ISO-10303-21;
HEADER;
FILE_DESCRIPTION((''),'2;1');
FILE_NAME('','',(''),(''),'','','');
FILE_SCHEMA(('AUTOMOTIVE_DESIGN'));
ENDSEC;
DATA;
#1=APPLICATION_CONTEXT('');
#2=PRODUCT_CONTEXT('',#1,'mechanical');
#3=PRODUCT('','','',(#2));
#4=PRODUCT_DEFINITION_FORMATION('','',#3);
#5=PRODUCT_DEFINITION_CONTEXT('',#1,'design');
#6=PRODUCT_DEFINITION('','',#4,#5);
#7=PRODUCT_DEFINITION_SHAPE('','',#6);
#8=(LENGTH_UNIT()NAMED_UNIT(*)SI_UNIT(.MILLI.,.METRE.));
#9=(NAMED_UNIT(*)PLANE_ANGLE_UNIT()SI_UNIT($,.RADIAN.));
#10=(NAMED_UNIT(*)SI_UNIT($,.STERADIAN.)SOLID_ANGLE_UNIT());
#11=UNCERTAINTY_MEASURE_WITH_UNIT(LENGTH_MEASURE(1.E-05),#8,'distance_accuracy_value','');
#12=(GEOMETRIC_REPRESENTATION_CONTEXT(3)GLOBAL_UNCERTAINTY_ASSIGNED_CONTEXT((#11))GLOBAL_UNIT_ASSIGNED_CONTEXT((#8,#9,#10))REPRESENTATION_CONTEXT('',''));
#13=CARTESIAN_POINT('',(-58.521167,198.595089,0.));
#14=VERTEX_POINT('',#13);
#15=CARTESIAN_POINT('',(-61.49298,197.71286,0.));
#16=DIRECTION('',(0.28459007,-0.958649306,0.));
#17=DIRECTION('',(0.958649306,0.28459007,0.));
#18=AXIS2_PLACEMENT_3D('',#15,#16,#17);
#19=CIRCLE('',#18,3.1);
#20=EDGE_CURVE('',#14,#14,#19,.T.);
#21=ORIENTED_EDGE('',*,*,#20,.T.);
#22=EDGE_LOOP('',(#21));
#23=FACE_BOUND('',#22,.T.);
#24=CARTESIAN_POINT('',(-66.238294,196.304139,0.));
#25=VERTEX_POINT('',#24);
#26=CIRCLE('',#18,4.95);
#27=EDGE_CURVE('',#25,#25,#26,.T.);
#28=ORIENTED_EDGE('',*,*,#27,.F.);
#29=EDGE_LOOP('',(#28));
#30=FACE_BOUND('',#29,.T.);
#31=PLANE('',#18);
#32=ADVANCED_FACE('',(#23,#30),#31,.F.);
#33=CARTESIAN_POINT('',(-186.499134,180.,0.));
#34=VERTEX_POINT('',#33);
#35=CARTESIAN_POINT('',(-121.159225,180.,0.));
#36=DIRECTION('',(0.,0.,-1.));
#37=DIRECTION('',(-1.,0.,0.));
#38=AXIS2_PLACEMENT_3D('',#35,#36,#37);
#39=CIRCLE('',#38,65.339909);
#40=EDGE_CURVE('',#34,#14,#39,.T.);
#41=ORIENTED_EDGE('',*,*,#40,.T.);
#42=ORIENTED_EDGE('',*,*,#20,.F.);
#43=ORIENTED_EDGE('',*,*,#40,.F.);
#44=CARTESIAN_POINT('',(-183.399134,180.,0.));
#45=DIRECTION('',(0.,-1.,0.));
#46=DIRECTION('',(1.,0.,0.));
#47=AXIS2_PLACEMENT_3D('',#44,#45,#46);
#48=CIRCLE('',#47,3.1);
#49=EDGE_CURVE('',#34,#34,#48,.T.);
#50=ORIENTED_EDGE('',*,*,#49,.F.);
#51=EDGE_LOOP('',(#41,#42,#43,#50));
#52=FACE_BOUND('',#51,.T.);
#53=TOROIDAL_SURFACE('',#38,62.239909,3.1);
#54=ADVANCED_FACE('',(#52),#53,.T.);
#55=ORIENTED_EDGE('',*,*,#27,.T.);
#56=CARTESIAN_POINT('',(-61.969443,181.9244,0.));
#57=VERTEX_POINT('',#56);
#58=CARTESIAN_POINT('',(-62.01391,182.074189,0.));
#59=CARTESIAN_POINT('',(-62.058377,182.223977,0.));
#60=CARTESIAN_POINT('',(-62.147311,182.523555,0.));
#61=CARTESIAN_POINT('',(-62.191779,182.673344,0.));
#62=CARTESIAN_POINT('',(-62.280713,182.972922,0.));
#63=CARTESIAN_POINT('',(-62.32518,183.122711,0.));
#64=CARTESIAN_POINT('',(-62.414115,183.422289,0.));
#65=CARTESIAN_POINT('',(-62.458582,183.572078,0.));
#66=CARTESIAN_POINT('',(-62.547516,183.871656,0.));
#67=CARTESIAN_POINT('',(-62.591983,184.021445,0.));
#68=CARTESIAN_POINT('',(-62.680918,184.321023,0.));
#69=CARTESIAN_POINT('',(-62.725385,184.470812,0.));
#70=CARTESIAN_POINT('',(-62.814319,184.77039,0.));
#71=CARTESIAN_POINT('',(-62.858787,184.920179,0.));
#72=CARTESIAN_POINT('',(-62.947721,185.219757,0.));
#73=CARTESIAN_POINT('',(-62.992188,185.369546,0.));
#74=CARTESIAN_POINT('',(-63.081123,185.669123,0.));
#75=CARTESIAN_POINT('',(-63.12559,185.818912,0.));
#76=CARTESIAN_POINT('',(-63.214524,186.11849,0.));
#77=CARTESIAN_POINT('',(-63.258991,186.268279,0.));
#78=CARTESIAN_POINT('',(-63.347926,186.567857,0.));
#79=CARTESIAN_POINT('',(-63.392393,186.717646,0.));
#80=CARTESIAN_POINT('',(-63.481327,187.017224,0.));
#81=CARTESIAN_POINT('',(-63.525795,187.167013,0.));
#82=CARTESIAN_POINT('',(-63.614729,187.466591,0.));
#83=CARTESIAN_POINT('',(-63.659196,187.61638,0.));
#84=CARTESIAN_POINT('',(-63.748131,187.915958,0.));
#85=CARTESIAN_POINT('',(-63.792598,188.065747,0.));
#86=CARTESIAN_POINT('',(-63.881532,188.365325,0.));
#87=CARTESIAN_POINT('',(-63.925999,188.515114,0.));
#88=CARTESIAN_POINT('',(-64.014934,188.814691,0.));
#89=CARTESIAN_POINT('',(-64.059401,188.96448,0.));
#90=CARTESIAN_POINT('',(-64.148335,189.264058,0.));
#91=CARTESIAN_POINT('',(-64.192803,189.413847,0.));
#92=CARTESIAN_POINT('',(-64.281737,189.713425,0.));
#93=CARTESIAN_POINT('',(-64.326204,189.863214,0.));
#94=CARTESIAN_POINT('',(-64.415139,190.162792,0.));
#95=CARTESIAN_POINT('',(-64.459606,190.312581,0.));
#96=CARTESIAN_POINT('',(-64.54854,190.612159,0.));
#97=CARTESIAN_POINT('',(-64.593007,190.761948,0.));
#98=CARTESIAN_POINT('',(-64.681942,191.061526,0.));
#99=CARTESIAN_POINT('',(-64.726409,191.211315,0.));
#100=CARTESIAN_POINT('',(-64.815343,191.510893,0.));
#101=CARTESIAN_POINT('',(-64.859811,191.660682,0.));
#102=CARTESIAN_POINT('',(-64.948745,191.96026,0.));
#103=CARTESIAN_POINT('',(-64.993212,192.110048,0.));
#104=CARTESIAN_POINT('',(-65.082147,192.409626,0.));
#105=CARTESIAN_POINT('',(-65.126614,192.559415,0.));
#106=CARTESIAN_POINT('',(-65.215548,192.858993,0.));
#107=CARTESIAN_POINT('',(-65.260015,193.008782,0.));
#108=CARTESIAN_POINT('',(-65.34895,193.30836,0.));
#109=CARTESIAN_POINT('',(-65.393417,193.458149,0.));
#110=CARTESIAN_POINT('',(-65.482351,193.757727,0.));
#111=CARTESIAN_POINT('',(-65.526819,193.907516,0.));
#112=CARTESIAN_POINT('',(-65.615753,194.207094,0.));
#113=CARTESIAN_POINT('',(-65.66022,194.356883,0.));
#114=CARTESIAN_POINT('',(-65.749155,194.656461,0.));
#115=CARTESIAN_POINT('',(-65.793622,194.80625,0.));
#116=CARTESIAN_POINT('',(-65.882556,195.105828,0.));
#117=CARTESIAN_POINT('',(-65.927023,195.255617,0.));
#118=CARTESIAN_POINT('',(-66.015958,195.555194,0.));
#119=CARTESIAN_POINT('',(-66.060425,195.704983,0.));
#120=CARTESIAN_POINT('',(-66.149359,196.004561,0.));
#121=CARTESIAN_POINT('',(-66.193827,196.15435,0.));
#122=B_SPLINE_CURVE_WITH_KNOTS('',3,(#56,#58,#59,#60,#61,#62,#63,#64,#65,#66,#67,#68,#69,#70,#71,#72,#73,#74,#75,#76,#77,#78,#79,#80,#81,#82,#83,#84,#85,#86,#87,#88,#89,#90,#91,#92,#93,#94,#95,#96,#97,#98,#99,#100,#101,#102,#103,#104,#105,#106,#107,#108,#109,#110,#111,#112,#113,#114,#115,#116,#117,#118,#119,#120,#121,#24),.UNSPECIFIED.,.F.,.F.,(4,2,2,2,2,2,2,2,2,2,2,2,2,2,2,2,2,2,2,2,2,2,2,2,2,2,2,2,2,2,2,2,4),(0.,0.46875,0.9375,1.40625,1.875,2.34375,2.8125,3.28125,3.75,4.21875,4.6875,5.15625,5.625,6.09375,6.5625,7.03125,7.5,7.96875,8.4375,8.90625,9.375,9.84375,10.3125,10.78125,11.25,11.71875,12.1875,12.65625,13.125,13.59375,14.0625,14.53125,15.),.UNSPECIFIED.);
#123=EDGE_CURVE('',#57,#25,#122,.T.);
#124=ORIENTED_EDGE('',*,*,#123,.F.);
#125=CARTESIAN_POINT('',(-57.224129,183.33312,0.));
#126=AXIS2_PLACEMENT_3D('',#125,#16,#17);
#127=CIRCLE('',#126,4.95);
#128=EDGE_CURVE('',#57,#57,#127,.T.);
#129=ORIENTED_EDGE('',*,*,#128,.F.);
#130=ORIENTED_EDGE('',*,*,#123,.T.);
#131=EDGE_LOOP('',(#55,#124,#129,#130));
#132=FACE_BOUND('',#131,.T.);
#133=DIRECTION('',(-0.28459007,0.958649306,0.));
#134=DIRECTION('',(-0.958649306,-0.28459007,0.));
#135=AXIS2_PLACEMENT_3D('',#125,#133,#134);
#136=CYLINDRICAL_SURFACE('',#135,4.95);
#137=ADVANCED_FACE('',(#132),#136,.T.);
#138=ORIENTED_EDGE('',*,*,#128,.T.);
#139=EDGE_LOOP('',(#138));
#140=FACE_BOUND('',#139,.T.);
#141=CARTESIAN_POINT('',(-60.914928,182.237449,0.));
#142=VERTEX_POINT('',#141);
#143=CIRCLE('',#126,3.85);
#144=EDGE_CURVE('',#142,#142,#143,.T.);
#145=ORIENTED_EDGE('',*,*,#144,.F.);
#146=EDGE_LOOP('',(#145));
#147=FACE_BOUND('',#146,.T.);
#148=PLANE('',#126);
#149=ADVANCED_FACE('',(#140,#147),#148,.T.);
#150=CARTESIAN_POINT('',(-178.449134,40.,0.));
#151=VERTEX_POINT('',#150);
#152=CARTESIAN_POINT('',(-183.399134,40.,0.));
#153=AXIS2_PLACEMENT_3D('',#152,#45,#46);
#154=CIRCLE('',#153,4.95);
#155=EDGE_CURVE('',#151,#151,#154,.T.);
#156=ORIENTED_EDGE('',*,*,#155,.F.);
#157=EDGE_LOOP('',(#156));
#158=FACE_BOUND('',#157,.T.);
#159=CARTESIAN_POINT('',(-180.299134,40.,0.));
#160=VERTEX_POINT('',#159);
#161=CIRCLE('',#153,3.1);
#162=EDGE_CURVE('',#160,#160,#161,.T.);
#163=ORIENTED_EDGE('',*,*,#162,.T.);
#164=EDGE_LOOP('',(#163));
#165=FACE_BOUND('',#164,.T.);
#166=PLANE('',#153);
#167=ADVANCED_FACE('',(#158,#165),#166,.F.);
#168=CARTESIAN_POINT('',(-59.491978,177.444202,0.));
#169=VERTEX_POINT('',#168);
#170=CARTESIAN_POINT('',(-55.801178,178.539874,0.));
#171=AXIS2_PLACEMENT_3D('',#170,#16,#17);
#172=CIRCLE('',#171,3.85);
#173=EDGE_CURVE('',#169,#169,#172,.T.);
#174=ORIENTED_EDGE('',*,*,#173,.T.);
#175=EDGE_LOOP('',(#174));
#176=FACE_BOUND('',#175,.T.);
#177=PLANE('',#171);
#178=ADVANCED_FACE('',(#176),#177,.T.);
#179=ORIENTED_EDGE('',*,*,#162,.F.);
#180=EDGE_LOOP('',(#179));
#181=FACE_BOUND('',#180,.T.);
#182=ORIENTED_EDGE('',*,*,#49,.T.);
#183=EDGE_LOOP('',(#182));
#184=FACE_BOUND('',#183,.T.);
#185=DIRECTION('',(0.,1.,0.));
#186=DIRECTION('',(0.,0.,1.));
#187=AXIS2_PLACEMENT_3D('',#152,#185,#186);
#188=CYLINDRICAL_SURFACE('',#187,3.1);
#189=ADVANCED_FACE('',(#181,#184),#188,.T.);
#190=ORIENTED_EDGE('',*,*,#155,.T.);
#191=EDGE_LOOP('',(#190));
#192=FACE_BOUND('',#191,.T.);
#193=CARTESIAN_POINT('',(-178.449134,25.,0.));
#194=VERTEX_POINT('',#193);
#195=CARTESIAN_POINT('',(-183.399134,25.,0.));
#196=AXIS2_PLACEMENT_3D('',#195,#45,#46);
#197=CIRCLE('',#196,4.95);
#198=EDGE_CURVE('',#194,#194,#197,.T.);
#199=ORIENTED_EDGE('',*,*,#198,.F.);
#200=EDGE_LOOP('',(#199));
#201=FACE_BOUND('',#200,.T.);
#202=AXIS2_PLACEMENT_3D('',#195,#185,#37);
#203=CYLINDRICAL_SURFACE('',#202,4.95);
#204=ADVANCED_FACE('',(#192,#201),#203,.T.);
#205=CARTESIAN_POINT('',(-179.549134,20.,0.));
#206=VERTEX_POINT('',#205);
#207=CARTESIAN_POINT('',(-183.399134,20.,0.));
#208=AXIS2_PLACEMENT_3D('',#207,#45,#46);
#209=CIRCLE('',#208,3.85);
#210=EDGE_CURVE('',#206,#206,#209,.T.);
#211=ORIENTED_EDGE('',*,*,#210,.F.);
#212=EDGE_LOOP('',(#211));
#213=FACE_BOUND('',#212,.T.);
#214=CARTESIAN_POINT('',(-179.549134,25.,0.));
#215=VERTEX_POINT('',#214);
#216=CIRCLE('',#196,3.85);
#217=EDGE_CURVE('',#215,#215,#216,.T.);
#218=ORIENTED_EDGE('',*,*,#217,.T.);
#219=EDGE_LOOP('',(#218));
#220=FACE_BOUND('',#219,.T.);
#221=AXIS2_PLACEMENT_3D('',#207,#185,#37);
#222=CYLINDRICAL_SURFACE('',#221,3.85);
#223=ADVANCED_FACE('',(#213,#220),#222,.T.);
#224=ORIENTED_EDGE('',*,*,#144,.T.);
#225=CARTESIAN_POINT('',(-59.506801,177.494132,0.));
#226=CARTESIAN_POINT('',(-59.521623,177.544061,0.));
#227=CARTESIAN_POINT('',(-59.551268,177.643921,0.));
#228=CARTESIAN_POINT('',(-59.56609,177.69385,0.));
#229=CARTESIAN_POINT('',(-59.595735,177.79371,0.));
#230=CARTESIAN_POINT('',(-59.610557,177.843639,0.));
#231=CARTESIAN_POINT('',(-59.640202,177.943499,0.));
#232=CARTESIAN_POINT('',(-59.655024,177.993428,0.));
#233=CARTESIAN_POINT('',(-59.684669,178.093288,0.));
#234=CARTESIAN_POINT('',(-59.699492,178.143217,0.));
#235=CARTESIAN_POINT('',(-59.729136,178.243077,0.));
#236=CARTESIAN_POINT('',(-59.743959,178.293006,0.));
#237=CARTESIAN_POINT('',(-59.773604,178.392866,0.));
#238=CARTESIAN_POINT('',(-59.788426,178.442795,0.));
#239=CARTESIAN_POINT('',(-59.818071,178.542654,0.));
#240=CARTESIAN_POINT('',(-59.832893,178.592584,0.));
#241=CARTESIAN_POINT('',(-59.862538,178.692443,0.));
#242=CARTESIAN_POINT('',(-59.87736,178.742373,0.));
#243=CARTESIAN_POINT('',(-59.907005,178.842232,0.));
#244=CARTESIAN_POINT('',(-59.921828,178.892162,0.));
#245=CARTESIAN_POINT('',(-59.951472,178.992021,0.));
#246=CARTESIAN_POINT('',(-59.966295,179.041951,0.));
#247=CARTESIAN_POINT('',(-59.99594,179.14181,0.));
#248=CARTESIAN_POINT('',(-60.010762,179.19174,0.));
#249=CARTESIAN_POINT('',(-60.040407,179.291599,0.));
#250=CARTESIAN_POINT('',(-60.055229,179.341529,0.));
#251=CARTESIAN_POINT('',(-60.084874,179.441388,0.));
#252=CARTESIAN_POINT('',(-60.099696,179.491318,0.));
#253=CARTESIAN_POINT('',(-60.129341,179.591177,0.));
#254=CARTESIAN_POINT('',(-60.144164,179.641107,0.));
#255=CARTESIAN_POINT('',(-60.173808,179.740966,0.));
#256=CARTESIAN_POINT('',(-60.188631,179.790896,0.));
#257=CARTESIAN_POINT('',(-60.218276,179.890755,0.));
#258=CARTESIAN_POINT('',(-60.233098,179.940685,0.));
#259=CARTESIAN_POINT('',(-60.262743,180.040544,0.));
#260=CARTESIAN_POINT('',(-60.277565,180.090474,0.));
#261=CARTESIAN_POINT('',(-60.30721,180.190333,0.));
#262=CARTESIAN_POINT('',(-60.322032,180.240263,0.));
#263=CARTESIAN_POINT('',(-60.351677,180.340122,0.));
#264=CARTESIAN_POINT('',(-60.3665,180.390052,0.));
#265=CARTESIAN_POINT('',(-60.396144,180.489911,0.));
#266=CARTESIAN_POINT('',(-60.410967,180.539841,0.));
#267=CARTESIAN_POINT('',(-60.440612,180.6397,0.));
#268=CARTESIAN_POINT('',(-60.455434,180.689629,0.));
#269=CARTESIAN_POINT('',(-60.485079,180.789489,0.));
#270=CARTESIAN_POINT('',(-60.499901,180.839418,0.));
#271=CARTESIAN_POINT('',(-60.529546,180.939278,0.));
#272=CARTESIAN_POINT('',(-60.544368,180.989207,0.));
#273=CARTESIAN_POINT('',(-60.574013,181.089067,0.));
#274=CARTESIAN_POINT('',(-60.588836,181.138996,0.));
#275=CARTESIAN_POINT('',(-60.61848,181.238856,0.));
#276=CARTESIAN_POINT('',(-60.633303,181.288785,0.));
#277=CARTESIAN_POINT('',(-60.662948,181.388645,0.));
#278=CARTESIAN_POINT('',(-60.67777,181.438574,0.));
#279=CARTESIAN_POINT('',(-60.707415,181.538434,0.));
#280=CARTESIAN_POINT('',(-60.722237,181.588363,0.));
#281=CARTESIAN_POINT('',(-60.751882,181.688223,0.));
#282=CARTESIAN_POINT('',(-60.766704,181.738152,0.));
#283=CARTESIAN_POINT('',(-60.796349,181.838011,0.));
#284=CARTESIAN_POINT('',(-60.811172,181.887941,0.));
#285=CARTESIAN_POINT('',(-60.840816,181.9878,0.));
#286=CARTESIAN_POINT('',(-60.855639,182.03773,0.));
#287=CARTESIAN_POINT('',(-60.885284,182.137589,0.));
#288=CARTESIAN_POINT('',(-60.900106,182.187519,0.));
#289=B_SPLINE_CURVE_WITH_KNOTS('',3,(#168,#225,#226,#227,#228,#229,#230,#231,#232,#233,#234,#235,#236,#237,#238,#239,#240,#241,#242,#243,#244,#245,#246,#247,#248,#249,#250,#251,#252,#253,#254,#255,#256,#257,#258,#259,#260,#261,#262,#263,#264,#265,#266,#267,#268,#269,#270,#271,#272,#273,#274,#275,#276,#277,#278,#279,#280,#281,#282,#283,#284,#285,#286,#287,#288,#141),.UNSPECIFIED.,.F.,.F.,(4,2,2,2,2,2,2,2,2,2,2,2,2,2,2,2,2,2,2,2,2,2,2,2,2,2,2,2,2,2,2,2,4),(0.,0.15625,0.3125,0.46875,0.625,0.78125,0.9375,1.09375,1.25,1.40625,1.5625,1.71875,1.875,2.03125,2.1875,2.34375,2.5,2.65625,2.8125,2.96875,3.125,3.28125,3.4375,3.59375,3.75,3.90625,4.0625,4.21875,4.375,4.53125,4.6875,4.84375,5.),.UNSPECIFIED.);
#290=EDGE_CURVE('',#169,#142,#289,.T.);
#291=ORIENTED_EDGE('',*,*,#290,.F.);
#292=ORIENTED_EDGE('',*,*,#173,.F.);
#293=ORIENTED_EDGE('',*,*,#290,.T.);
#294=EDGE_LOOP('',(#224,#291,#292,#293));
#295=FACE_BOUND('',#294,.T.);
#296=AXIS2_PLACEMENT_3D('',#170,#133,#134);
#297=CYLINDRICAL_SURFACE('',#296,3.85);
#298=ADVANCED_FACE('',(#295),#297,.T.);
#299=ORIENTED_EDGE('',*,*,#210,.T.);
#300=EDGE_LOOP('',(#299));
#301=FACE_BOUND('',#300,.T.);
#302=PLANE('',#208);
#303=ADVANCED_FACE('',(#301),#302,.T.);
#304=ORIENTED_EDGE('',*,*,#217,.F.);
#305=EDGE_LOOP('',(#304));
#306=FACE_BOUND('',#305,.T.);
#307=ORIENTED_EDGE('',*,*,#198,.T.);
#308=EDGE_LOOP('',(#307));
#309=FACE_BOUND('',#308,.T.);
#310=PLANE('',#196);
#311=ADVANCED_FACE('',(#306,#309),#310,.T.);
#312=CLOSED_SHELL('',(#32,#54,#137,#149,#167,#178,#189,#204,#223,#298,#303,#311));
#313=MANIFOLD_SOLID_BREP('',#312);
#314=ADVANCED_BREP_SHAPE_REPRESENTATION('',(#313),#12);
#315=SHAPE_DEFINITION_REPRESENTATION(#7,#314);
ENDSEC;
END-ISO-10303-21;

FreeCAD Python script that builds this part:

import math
import FreeCAD as App
import Part
import Sketcher

doc = App.newDocument("Part")
body = doc.addObject("PartDesign::Body", "Body")

# Sketch on XZ plane
sketch1 = doc.addObject("Sketcher::SketchObject", "Sketch")
body.addObject(sketch1)
sketch1.AttachmentSupport = (doc.XZ_Plane, [""])
sketch1.MapMode = "FlatFace"
sketch1.AttachmentOffset = App.Placement(App.Vector(0, 0, -40), App.Rotation())
sketch1.addGeometry(Part.Circle(App.Vector(-183.4, 0, 0), App.Vector(0, 0, 1), 3.1), False)
sketch1.addConstraint([
    Sketcher.Constraint("PointOnObject", 0, 3, -1),
    Sketcher.Constraint("Diameter", 0, 6.2),
    Sketcher.Constraint("DistanceX", 0, 3, -1, 1, 183.399134),
])

# Sketch on XY plane
sketch2 = doc.addObject("Sketcher::SketchObject", "Sketch001")
body.addObject(sketch2)
sketch2.AttachmentSupport = (doc.XY_Plane, [""])
sketch2.MapMode = "FlatFace"
sketch2.addGeometry([
    Part.LineSegment(App.Vector(-183, 40, 0), App.Vector(-183, 180, 0)),
    Part.ArcOfCircle(Part.Circle(App.Vector(-121, 180, 0), App.Vector(0, 0, 1), 62), math.radians(17), math.radians(180)),
], False)
sketch2.addConstraint([
    Sketcher.Constraint("Tangent", 0, 2, 1, 2),
    Sketcher.Constraint("Vertical", 0),
    Sketcher.Constraint("DistanceY", 0, 1, 0, 2, 140.0),
    Sketcher.Constraint("DistanceY", -1, 1, 1, 3, 180.0),
    Sketcher.Constraint("Radius", 1, 62.239909),
    Sketcher.Constraint("DistanceX", 1, 1, -1, 1, 61.49298),
    Sketcher.Constraint("DistanceY", -1, 1, 1, 1, 197.71286),
])
doc.recompute()

additivepipe = doc.addObject("PartDesign::AdditivePipe", "AdditivePipe")
body.addObject(additivepipe)
additivepipe.Profile = sketch1
additivepipe.Spine = (sketch2, ["Edge1", "Edge2"])

# Sketch on XZ plane
sketch3 = doc.addObject("Sketcher::SketchObject", "Sketch002")
body.addObject(sketch3)
sketch3.AttachmentSupport = (doc.XZ_Plane, [""])
sketch3.MapMode = "FlatFace"
sketch3.AttachmentOffset = App.Placement(App.Vector(0, 0, -40), App.Rotation())
sketch3.addGeometry(Part.Circle(App.Vector(-183.4, 0, 0), App.Vector(0, 0, 1), 5), False)
sketch3.addConstraint([
    Sketcher.Constraint("PointOnObject", 0, 3, -1),
    Sketcher.Constraint("Diameter", 0, 9.9),
    Sketcher.Constraint("DistanceX", 0, 3, -1, 1, 183.399134),
])
pad1 = doc.addObject("PartDesign::Pad", "Pad")
body.addObject(pad1)
pad1.Profile = sketch3
pad1.Length = 15

# Sketch on XZ plane
sketch4 = doc.addObject("Sketcher::SketchObject", "Sketch003")
body.addObject(sketch4)
sketch4.AttachmentSupport = (doc.XZ_Plane, [""])
sketch4.MapMode = "FlatFace"
sketch4.AttachmentOffset = App.Placement(App.Vector(0, 0, -25), App.Rotation())
sketch4.addGeometry(Part.Circle(App.Vector(-183.4, 0, 0), App.Vector(0, 0, 1), 3.9), False)
sketch4.addConstraint([
    Sketcher.Constraint("PointOnObject", 0, 3, -1),
    Sketcher.Constraint("Diameter", 0, 7.7),
    Sketcher.Constraint("DistanceX", 0, 3, -1, 1, 183.399134),
])
pad2 = doc.addObject("PartDesign::Pad", "Pad001")
body.addObject(pad2)
pad2.Profile = sketch4
pad2.Length = 5

# Sketch on an angled plane
sketch5 = doc.addObject("Sketcher::SketchObject", "Sketch004")
body.addObject(sketch5)
sketch5.Placement = App.Placement(App.Vector(-58.920842, 198.47644, 0), App.Rotation(App.Vector(0.958649306, 0.28459007, 0), App.Vector(0, 0, 1), App.Vector(0.28459007, -0.958649306, 0), "ZXY"))
sketch5.addGeometry(Part.Circle(App.Vector(-2.7, 0, 0), App.Vector(0, 0, 1), 5), False)
sketch5.addConstraint([
    Sketcher.Constraint("PointOnObject", 0, 3, -1),
    Sketcher.Constraint("Diameter", 0, 9.9),
    Sketcher.Constraint("DistanceX", 0, 3, -1, 1, 2.683086),
])
pad3 = doc.addObject("PartDesign::Pad", "Pad002")
body.addObject(pad3)
pad3.Profile = sketch5
pad3.Length = 15

# Sketch on an angled plane
sketch6 = doc.addObject("Sketcher::SketchObject", "Sketch005")
body.addObject(sketch6)
sketch6.Placement = App.Placement(App.Vector(-54.65199, 184.0967, 0), App.Rotation(App.Vector(0.958649306, 0.28459007, 0), App.Vector(0, 0, 1), App.Vector(0.28459007, -0.958649306, 0), "ZXY"))
sketch6.addGeometry(Part.Circle(App.Vector(-2.7, 0, 0), App.Vector(0, 0, 1), 3.9), False)
sketch6.addConstraint([
    Sketcher.Constraint("PointOnObject", 0, 3, -1),
    Sketcher.Constraint("Diameter", 0, 7.7),
    Sketcher.Constraint("DistanceX", 0, 3, -1, 1, 2.683086),
])
pad4 = doc.addObject("PartDesign::Pad", "Pad003")
body.addObject(pad4)
pad4.Profile = sketch6
pad4.Length = 5

doc.recompute()
